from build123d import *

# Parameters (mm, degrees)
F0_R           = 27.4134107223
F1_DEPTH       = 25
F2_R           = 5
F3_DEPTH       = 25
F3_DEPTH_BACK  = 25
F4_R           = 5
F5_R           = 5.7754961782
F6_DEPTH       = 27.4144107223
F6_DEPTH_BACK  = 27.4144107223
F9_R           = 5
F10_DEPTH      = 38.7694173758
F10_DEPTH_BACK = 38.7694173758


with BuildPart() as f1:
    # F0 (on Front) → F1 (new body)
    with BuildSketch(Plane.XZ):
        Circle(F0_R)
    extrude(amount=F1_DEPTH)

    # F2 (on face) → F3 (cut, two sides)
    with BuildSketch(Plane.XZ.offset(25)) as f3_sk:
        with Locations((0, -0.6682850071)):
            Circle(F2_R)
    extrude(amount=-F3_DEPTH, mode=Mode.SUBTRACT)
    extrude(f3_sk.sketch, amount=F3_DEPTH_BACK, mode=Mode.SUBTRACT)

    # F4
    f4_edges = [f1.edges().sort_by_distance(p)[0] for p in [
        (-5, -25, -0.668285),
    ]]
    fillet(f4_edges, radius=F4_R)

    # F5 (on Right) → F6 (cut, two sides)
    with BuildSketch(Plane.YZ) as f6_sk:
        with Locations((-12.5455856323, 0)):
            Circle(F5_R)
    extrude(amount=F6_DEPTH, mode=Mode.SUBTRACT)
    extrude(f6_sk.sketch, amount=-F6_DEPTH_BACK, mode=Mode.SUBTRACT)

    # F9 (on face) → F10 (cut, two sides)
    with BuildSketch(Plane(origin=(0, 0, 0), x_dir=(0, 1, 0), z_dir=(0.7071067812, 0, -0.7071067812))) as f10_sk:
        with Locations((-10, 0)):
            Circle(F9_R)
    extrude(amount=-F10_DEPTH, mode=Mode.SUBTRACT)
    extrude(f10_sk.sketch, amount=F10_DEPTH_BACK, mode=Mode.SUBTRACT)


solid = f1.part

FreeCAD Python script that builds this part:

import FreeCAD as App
import Part
import Sketcher

V = App.Vector
Q = App.Units.Quantity


def edges_at(feature, points):
    """Names of the edges that pass closest to the given points."""
    edges = feature.Shape.Edges
    near = lambda p: min(range(len(edges)), key=lambda i: edges[i].distToShape(Part.Vertex(*p))[0])
    return sorted({f"Edge{near(p) + 1}" for p in points})

doc = App.newDocument("Part")
body = doc.addObject("PartDesign::Body", "Body")

sketch1 = body.newObject("Sketcher::SketchObject", "Sketch")
sketch1.AttachmentSupport = (doc.getObject("XZ_Plane"), [""])
sketch1.MapMode = "FlatFace"
sketch1.addGeometry(Part.Circle(V(0, 0, 0), V(0, 0, 1), 27), False)
sketch1.addConstraint([
    Sketcher.Constraint("Coincident", 0, 3, -1, 1),
    Sketcher.Constraint("Diameter", 0, Q("54.826821 mm")),
])
pad1 = body.newObject("PartDesign::Pad", "Pad")
pad1.Profile = sketch1
pad1.Length = 25

sketch2 = body.newObject("Sketcher::SketchObject", "Sketch001")
sketch2.AttachmentSupport = (doc.getObject("XZ_Plane"), [""])
sketch2.MapMode = "FlatFace"
sketch2.AttachmentOffset = App.Placement(V(0, 0, 25), App.Rotation())
sketch2.addGeometry(Part.Circle(V(0, -1, 0), V(0, 0, 1), 5), False)
sketch2.addConstraint([
    Sketcher.Constraint("PointOnObject", 0, 3, -2),
    Sketcher.Constraint("Diameter", 0, Q("10 mm")),
    Sketcher.Constraint("DistanceY", 0, 3, -1, 1, Q("0.668285 mm")),
])
pocket1 = body.newObject("PartDesign::Pocket", "Pocket")
pocket1.Profile = sketch2
pocket1.Type = "ThroughAll"
pocket1.Midplane = True
doc.recompute()

fillet = body.newObject("PartDesign::Fillet", "Fillet")
fillet.Base = (pocket1, edges_at(pocket1, [(-5, -25, -0.668)]))
fillet.Radius = 5

sketch3 = body.newObject("Sketcher::SketchObject", "Sketch002")
sketch3.AttachmentSupport = (doc.getObject("YZ_Plane"), [""])
sketch3.MapMode = "FlatFace"
sketch3.addGeometry(Part.Circle(V(-13, 0, 0), V(0, 0, 1), 6), False)
sketch3.addConstraint([
    Sketcher.Constraint("PointOnObject", 0, 3, -1),
    Sketcher.Constraint("Diameter", 0, Q("11.550992 mm")),
    Sketcher.Constraint("DistanceX", 0, 3, -1, 1, Q("12.545586 mm")),
])
pocket2 = body.newObject("PartDesign::Pocket", "Pocket001")
pocket2.Profile = sketch3
pocket2.Type = "ThroughAll"
pocket2.Midplane = True

sketch4 = body.newObject("Sketcher::SketchObject", "Sketch003")
sketch4.Placement = App.Placement(V(0, 0, 0), App.Rotation(V(0, 1, 0), V(0.707106781, 0, 0.707106781), V(0.707106781, 0, -0.707106781), "ZXY"))
sketch4.addGeometry(Part.Circle(V(-10, 0, 0), V(0, 0, 1), 5), False)
sketch4.addConstraint([
    Sketcher.Constraint("PointOnObject", 0, 3, -1),
    Sketcher.Constraint("Diameter", 0, Q("10 mm")),
    Sketcher.Constraint("DistanceX", 0, 3, -1, 1, Q("10 mm")),
])
pocket3 = body.newObject("PartDesign::Pocket", "Pocket002")
pocket3.Profile = sketch4
pocket3.Type = "ThroughAll"
pocket3.Midplane = True

doc.recompute()
